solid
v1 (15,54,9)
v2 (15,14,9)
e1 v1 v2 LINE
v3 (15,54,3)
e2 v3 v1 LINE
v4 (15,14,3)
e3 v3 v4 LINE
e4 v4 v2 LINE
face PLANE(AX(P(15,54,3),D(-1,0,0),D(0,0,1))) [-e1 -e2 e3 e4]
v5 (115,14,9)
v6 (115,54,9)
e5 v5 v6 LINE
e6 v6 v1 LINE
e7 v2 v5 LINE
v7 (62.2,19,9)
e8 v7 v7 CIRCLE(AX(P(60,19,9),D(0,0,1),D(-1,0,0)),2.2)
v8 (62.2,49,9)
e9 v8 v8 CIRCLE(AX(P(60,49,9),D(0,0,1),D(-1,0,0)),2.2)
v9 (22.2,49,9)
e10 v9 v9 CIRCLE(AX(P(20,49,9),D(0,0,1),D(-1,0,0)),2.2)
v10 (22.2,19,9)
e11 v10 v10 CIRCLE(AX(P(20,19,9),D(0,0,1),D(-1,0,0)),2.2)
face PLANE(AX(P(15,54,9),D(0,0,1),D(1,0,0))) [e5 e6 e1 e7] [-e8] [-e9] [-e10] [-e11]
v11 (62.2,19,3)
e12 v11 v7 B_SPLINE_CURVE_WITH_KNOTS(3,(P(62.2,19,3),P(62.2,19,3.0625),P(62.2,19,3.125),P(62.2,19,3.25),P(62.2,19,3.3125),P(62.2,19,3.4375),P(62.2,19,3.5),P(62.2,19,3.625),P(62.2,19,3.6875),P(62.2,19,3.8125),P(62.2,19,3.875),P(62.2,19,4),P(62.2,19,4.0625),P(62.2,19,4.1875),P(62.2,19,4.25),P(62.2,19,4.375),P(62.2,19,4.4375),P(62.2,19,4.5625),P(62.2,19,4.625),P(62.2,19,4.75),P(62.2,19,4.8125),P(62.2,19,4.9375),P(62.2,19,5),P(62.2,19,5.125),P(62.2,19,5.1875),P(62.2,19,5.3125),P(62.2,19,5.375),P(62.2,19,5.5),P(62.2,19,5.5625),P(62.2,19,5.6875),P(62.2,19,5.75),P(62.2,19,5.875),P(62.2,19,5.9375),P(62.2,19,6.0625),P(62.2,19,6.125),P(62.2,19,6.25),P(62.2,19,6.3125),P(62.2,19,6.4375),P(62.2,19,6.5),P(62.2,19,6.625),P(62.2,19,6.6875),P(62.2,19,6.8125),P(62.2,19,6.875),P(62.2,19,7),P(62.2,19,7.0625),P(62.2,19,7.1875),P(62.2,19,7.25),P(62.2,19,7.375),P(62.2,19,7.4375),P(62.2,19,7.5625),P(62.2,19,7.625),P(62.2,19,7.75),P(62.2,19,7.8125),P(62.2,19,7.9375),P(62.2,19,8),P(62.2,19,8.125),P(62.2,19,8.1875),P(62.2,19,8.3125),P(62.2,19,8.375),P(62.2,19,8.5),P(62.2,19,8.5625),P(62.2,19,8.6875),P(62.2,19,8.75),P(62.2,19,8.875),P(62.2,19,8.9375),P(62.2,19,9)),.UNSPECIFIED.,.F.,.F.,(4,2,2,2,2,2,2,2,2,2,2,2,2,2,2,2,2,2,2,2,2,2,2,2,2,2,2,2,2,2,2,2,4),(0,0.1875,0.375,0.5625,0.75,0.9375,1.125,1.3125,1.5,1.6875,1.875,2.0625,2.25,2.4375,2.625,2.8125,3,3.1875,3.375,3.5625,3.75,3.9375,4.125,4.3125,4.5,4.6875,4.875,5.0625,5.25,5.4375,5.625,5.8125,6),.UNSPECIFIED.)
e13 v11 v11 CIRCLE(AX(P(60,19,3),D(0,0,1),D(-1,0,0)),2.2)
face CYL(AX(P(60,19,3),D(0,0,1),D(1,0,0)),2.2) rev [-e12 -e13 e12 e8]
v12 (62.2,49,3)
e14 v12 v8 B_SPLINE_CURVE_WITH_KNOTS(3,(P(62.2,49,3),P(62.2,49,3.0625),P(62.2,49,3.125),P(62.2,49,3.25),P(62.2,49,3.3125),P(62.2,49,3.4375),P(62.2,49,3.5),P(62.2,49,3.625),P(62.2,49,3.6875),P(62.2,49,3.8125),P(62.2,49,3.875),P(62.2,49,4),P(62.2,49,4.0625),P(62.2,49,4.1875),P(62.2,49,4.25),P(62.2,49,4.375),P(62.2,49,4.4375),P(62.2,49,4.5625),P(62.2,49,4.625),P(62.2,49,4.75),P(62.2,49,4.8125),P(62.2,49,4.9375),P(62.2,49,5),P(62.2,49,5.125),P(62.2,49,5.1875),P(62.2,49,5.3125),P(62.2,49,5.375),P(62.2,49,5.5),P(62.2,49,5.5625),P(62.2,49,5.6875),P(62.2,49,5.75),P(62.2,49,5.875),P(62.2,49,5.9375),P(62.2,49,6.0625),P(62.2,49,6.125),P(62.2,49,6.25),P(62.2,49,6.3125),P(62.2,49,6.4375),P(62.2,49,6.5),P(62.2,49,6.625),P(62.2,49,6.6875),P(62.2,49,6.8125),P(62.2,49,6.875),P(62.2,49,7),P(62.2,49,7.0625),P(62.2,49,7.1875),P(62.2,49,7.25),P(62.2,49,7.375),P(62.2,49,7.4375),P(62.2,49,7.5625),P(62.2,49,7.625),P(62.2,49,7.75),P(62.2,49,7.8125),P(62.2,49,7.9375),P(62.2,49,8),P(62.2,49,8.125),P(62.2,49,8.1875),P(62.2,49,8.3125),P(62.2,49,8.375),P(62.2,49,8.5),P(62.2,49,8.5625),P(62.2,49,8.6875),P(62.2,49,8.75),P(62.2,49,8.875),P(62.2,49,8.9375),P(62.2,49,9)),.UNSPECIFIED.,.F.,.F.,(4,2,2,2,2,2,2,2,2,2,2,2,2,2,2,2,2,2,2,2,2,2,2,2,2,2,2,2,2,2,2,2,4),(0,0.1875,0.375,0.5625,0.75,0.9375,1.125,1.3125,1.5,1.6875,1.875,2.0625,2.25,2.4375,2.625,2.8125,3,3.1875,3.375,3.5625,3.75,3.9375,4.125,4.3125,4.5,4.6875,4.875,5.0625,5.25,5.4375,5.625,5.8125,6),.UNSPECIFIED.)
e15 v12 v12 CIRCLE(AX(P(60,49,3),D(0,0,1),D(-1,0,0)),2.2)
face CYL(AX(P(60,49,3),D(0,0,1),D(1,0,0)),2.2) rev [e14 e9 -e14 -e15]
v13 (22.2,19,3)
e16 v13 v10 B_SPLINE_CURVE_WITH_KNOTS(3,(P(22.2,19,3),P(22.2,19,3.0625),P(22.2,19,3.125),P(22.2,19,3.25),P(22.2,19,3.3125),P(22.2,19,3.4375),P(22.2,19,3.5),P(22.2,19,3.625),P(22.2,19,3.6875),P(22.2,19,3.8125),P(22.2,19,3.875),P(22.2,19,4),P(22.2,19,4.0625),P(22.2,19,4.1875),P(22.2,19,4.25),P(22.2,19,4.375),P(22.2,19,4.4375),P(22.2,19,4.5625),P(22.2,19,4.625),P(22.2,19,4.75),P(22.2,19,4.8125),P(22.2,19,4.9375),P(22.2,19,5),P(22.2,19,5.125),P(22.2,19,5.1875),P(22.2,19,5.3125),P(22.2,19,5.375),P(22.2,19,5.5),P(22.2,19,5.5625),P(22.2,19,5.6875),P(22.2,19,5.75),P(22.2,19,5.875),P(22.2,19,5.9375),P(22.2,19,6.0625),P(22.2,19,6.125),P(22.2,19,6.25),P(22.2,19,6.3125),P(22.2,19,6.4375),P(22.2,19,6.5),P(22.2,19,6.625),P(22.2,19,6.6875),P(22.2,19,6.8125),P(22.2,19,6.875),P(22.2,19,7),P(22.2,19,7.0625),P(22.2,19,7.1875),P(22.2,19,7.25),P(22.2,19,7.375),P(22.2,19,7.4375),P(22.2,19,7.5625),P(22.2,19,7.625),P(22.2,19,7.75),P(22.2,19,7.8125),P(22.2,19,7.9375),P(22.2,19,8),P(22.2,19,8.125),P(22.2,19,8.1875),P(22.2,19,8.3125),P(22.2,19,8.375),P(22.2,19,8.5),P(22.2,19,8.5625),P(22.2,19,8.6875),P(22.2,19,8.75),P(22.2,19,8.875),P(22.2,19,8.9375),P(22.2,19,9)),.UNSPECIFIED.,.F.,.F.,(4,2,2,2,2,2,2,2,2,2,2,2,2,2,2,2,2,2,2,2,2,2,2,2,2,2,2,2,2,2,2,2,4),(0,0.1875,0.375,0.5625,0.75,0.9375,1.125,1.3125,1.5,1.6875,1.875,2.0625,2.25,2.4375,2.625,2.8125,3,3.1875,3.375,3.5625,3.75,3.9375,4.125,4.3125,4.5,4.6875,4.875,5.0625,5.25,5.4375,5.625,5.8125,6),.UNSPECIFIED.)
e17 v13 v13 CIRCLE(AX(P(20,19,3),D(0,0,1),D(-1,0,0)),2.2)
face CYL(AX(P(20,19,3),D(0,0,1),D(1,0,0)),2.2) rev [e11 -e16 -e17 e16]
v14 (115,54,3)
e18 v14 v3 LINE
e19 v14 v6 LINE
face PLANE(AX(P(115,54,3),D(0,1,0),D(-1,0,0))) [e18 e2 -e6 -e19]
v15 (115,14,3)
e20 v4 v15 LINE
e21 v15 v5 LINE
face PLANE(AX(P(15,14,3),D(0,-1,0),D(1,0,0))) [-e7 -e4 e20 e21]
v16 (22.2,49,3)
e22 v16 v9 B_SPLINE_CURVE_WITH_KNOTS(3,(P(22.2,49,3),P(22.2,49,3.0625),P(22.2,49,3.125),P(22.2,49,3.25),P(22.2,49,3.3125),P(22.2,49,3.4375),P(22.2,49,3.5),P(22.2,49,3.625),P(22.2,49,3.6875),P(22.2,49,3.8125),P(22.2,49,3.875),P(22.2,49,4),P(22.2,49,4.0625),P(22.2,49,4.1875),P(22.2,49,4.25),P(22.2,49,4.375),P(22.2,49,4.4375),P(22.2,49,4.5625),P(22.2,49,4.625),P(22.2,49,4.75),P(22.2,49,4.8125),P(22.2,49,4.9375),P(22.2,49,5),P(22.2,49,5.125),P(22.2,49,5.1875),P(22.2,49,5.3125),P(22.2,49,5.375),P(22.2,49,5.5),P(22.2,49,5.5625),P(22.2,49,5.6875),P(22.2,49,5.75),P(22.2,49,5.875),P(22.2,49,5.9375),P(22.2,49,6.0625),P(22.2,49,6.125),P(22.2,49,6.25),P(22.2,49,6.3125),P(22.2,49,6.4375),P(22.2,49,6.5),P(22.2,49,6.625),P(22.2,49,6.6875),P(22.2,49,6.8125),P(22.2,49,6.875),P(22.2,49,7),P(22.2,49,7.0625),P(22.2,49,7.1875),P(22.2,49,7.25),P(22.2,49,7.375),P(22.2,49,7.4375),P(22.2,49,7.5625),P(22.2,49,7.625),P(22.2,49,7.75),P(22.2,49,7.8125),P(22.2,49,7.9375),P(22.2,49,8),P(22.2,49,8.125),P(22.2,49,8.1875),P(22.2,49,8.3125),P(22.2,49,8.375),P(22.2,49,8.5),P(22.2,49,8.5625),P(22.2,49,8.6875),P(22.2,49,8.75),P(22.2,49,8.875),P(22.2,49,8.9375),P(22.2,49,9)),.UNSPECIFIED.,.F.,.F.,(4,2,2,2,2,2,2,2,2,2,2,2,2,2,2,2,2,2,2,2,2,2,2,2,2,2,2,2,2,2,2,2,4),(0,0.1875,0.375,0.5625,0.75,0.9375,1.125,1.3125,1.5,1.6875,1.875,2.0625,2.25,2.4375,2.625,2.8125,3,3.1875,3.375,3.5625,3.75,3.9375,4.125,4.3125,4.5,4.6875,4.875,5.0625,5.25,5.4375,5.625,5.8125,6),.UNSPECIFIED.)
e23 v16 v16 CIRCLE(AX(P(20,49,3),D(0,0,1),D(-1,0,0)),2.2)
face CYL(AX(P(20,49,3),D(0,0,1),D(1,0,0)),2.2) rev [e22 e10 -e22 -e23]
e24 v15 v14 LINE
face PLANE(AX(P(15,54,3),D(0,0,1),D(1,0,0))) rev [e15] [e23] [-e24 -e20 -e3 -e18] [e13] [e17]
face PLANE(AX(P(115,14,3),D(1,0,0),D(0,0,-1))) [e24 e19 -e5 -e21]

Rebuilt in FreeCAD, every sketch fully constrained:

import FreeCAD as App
import Part
import Sketcher


def add_polygon(sketch, points):
    """Adds a closed chain of lines whose ends are joined by coincident constraints."""
    first, n = sketch.GeometryCount, len(points)
    for a, b in zip(points, points[1:] + points[:1]):
        sketch.addGeometry(Part.LineSegment(App.Vector(*a, 0), App.Vector(*b, 0)), False)
    for i in range(n):
        sketch.addConstraint(Sketcher.Constraint("Coincident", first + i, 2, first + (i + 1) % n, 1))

doc = App.newDocument("Part")
body = doc.addObject("PartDesign::Body", "Body")

# Sketch on XY plane
sketch1 = doc.addObject("Sketcher::SketchObject", "Sketch")
body.addObject(sketch1)
sketch1.AttachmentSupport = (doc.XY_Plane, [""])
sketch1.MapMode = "FlatFace"
sketch1.AttachmentOffset = App.Placement(App.Vector(0, 0, 9), App.Rotation())
add_polygon(sketch1, [(15, 54), (15, 14), (115, 14), (115, 54)])  # lines 0-3
sketch1.addGeometry(Part.Circle(App.Vector(20, 19, 0), App.Vector(0, 0, 1), 2.2), False)  # 4
sketch1.addGeometry(Part.Circle(App.Vector(60, 19, 0), App.Vector(0, 0, 1), 2.2), False)  # 5
sketch1.addGeometry(Part.Circle(App.Vector(20, 49, 0), App.Vector(0, 0, 1), 2.2), False)  # 6
sketch1.addGeometry(Part.Circle(App.Vector(60, 49, 0), App.Vector(0, 0, 1), 2.2), False)  # 7
sketch1.addConstraint([
    Sketcher.Constraint("Vertical", 0),
    Sketcher.Constraint("Horizontal", 1),
    Sketcher.Constraint("Vertical", 2),
    Sketcher.Constraint("Horizontal", 3),
    Sketcher.Constraint("Equal", 4, 5),
    Sketcher.Constraint("Equal", 5, 6),
    Sketcher.Constraint("Equal", 6, 7),
    Sketcher.Constraint("Horizontal", 4, 3, 5, 3),
    Sketcher.Constraint("Horizontal", 6, 3, 7, 3),
    Sketcher.Constraint("Vertical", 4, 3, 6, 3),
    Sketcher.Constraint("Vertical", 5, 3, 7, 3),
    Sketcher.Constraint("Diameter", 4, 4.4),
    Sketcher.Constraint("DistanceX", 1, 1, 1, 2, 100.0),
    Sketcher.Constraint("DistanceY", 0, 2, 0, 1, 40.0),
    Sketcher.Constraint("DistanceX", -1, 1, 4, 3, 20.0),
    Sketcher.Constraint("DistanceY", -1, 1, 4, 3, 19.0),
    Sketcher.Constraint("DistanceX", -1, 1, 5, 3, 60.0),
    Sketcher.Constraint("DistanceY", -1, 1, 6, 3, 49.0),
    Sketcher.Constraint("DistanceX", -1, 1, 0, 2, 15.0),
    Sketcher.Constraint("DistanceY", -1, 1, 0, 2, 14.0),
])
pad1 = doc.addObject("PartDesign::Pad", "Pad")
body.addObject(pad1)
pad1.Profile = sketch1
pad1.Length = 6
pad1.Reversed = True

doc.recompute()
